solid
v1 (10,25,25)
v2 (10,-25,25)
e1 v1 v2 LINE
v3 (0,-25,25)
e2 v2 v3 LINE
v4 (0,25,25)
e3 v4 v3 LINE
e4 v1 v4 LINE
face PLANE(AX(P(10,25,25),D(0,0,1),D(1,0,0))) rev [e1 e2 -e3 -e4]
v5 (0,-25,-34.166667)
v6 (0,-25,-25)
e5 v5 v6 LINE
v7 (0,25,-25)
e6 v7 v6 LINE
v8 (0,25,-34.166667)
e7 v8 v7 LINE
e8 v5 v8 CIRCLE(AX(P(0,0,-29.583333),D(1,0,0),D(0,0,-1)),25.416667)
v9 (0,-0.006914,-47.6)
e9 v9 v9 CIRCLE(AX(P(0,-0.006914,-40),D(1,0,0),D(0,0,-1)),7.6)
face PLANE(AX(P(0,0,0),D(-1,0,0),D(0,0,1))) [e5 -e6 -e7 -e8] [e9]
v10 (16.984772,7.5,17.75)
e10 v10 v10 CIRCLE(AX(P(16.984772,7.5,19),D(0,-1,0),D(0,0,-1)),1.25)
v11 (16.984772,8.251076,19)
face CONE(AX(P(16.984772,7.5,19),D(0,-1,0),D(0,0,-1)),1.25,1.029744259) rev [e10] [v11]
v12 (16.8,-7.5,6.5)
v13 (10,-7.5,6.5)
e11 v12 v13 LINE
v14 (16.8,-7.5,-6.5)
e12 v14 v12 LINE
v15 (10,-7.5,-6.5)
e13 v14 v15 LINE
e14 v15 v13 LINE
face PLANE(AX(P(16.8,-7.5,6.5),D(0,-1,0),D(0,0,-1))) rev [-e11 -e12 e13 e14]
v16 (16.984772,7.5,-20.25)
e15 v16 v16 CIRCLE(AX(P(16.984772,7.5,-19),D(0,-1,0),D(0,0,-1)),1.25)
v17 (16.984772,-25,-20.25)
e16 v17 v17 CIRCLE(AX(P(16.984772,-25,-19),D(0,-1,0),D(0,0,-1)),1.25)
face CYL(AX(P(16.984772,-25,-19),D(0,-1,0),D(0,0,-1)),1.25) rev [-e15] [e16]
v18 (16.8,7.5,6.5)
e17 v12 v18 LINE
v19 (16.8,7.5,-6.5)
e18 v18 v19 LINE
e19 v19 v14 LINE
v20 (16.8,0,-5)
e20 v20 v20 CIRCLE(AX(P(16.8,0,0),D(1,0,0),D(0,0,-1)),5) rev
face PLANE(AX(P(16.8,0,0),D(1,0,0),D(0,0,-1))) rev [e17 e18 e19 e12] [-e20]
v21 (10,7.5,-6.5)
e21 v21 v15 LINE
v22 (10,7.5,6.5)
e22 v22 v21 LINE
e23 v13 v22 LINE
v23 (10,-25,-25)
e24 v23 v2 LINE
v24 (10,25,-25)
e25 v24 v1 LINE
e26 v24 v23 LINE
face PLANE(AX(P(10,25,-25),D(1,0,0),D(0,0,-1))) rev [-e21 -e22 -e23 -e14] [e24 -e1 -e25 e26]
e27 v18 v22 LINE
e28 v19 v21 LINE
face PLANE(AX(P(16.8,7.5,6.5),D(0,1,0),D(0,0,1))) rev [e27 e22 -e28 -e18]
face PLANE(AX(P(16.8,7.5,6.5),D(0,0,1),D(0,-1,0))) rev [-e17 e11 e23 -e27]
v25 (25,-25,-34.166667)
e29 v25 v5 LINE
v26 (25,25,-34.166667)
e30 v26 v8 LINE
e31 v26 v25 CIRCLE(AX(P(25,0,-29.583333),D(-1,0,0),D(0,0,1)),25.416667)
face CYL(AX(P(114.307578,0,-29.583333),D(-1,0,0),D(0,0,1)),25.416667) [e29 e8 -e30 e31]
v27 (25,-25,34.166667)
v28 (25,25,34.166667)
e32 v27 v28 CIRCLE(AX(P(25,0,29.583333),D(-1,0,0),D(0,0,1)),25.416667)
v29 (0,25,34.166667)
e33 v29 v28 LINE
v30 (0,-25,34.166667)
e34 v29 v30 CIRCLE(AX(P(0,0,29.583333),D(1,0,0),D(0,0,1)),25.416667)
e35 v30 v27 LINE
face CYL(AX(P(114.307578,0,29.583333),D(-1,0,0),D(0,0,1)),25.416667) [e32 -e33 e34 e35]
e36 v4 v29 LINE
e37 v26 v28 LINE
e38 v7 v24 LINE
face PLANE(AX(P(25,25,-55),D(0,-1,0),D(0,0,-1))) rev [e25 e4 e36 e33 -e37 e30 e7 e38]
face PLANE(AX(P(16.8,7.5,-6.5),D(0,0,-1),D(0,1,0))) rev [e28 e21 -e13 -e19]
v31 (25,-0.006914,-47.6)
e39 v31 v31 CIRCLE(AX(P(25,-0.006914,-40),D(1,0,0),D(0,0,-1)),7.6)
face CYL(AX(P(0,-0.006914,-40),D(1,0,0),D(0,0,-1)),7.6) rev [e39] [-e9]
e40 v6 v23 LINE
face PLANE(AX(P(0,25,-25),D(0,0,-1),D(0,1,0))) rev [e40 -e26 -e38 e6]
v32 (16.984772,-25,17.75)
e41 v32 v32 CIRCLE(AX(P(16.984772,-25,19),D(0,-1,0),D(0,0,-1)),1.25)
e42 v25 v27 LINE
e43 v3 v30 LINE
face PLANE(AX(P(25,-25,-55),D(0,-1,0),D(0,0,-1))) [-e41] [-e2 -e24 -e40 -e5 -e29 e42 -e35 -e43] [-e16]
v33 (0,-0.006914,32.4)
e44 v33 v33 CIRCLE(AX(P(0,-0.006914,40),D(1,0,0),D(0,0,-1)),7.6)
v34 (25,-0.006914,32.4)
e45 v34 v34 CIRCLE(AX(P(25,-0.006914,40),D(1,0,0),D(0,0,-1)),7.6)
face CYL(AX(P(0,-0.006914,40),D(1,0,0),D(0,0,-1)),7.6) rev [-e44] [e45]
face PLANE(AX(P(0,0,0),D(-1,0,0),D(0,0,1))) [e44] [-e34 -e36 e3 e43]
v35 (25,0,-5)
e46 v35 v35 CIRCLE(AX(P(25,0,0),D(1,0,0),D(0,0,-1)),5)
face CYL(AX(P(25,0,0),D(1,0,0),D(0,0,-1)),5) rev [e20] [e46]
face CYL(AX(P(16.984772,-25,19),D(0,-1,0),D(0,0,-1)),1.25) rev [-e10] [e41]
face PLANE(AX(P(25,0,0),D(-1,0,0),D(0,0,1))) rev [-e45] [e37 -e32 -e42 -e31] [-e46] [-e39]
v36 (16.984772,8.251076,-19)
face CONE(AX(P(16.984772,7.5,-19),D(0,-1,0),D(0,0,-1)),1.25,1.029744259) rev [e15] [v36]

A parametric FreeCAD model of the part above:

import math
import FreeCAD as App
import Part
import Sketcher

doc = App.newDocument("Part")
params = doc.addObject("Spreadsheet::Sheet", "Params")
for row, (alias, value) in enumerate([
    ("sketch1_width", "50 mm"),
    ("sketch1_height", "110 mm"),
    ("pad1_length", "25 mm"),
    ("sketch2_diameter", "15.2 mm"),
    ("sketch3_diameter", "10 mm"),
    ("hole_diameter", "10 mm"),
    ("hole_depth", "25 mm"),
    ("sketch4_width", "10 mm"),
    ("sketch4_height", "50 mm"),
    ("sketch5_width", "15 mm"),
    ("sketch5_height", "13 mm"),
    ("pocket3_length", "6.8 mm"),
    ("pocket4_length", "25 mm"),
    ("sketch7_diameter", "2.5 mm"),
    ("hole2_diameter", "2.5 mm"),
    ("hole2_depth", "32.5 mm"),
], start=1):
    params.set(f"A{row}", alias)
    params.set(f"B{row}", "=" + value)
    params.setAlias(f"B{row}", alias)

body = doc.addObject("PartDesign::Body", "Body")

# Sketch on YZ plane
sketch1 = doc.addObject("Sketcher::SketchObject", "Sketch")
body.addObject(sketch1)
sketch1.AttachmentSupport = (doc.YZ_Plane, [""])
sketch1.MapMode = "FlatFace"
sketch1.addGeometry(Part.LineSegment(App.Vector(25, 55, 0), App.Vector(-25, 55, 0)), False)
sketch1.addGeometry(Part.LineSegment(App.Vector(-25, 55, 0), App.Vector(-25, -55, 0)), False)
sketch1.addGeometry(Part.LineSegment(App.Vector(-25, -55, 0), App.Vector(25, -55, 0)), False)
sketch1.addGeometry(Part.LineSegment(App.Vector(25, -55, 0), App.Vector(25, 55, 0)), False)
sketch1.addConstraint(Sketcher.Constraint("Coincident", 0, 2, 1, 1))
sketch1.addConstraint(Sketcher.Constraint("Coincident", 1, 2, 2, 1))
sketch1.addConstraint(Sketcher.Constraint("Coincident", 2, 2, 3, 1))
sketch1.addConstraint(Sketcher.Constraint("Coincident", 3, 2, 0, 1))
sketch1.addConstraint(Sketcher.Constraint("Horizontal", 0))
sketch1.addConstraint(Sketcher.Constraint("Vertical", 1))
sketch1.addConstraint(Sketcher.Constraint("Horizontal", 2))
sketch1.addConstraint(Sketcher.Constraint("Vertical", 3))
sketch1.addConstraint(Sketcher.Constraint("Symmetric", 0, 2, 2, 2, -1, 1))
sketch1.addConstraint(Sketcher.Constraint("DistanceX", 0, 2, 0, 1, 50.0))
sketch1.addConstraint(Sketcher.Constraint("DistanceY", 1, 2, 1, 1, 110.0))
sketch1.setExpression("Constraints[9]", "Params.sketch1_width")
sketch1.setExpression("Constraints[10]", "Params.sketch1_height")
pad1 = doc.addObject("PartDesign::Pad", "Pad")
body.addObject(pad1)
pad1.Profile = sketch1
pad1.setExpression("Length", "Params.pad1_length")

# Sketch on YZ plane
sketch2 = doc.addObject("Sketcher::SketchObject", "Sketch001")
body.addObject(sketch2)
sketch2.AttachmentSupport = (doc.YZ_Plane, [""])
sketch2.MapMode = "FlatFace"
sketch2.AttachmentOffset = App.Placement(App.Vector(0, 0, 25), App.Rotation())
sketch2.addGeometry(Part.Circle(App.Vector(-0.006914, 40, 0), App.Vector(0, 0, 1), 7.6), False)
sketch2.addGeometry(Part.Circle(App.Vector(-0.006914, -40, 0), App.Vector(0, 0, 1), 7.6), False)
sketch2.addConstraint(Sketcher.Constraint("Equal", 0, 1))
sketch2.addConstraint(Sketcher.Constraint("Symmetric", 0, 3, 1, 3, -1))
sketch2.addConstraint(Sketcher.Constraint("Diameter", 0, 15.2))
sketch2.addConstraint(Sketcher.Constraint("DistanceY", -1, 1, 0, 3, 40.0))
sketch2.addConstraint(Sketcher.Constraint("DistanceX", 0, 3, -1, 1, 0.006914))
sketch2.setExpression("Constraints[2]", "Params.sketch2_diameter")
pocket1 = doc.addObject("PartDesign::Pocket", "Pocket")
body.addObject(pocket1)
pocket1.Profile = sketch2
pocket1.Type = "ThroughAll"

# Sketch on YZ plane
sketch3 = doc.addObject("Sketcher::SketchObject", "Sketch002")
body.addObject(sketch3)
sketch3.AttachmentSupport = (doc.YZ_Plane, [""])
sketch3.MapMode = "FlatFace"
sketch3.AttachmentOffset = App.Placement(App.Vector(0, 0, 25), App.Rotation())
sketch3.addGeometry(Part.Circle(App.Vector(0, 0, 0), App.Vector(0, 0, 1), 5), False)
sketch3.addConstraint(Sketcher.Constraint("Coincident", 0, 3, -1, 1))
sketch3.addConstraint(Sketcher.Constraint("Diameter", 0, 10.0))
sketch3.setExpression("Constraints[1]", "Params.sketch3_diameter")
doc.recompute()
hole = doc.addObject("PartDesign::Hole", "Hole")
body.addObject(hole)
hole.Profile = sketch3
hole.ThreadType = "None"
hole.setExpression("Diameter", "Params.hole_diameter")
hole.DepthType = "Dimension"
hole.setExpression("Depth", "Params.hole_depth")
hole.DrillPoint = "Angled"
hole.DrillPointAngle = 118

# Sketch on XZ plane
sketch4 = doc.addObject("Sketcher::SketchObject", "Sketch003")
body.addObject(sketch4)
sketch4.AttachmentSupport = (doc.XZ_Plane, [""])
sketch4.MapMode = "FlatFace"
sketch4.AttachmentOffset = App.Placement(App.Vector(0, 0, 25), App.Rotation())
sketch4.addGeometry(Part.LineSegment(App.Vector(0, 25, 0), App.Vector(0, -25, 0)), False)
sketch4.addGeometry(Part.LineSegment(App.Vector(0, -25, 0), App.Vector(10, -25, 0)), False)
sketch4.addGeometry(Part.LineSegment(App.Vector(10, -25, 0), App.Vector(10, 25, 0)), False)
sketch4.addGeometry(Part.LineSegment(App.Vector(10, 25, 0), App.Vector(0, 25, 0)), False)
sketch4.addConstraint(Sketcher.Constraint("Coincident", 0, 2, 1, 1))
sketch4.addConstraint(Sketcher.Constraint("Coincident", 1, 2, 2, 1))
sketch4.addConstraint(Sketcher.Constraint("Coincident", 2, 2, 3, 1))
sketch4.addConstraint(Sketcher.Constraint("Coincident", 3, 2, 0, 1))
sketch4.addConstraint(Sketcher.Constraint("Vertical", 0))
sketch4.addConstraint(Sketcher.Constraint("Horizontal", 1))
sketch4.addConstraint(Sketcher.Constraint("Vertical", 2))
sketch4.addConstraint(Sketcher.Constraint("Horizontal", 3))
sketch4.addConstraint(Sketcher.Constraint("Symmetric", 0, 2, 3, 2, -1, 1))
sketch4.addConstraint(Sketcher.Constraint("DistanceX", 1, 1, 1, 2, 10.0))
sketch4.addConstraint(Sketcher.Constraint("DistanceY", 0, 2, 0, 1, 50.0))
sketch4.setExpression("Constraints[9]", "Params.sketch4_width")
sketch4.setExpression("Constraints[10]", "Params.sketch4_height")
pocket2 = doc.addObject("PartDesign::Pocket", "Pocket001")
body.addObject(pocket2)
pocket2.Profile = sketch4
pocket2.Type = "ThroughAll"

# Sketch on YZ plane
sketch5 = doc.addObject("Sketcher::SketchObject", "Sketch004")
body.addObject(sketch5)
sketch5.AttachmentSupport = (doc.YZ_Plane, [""])
sketch5.MapMode = "FlatFace"
sketch5.AttachmentOffset = App.Placement(App.Vector(0, 0, 10), App.Rotation())
sketch5.addGeometry(Part.LineSegment(App.Vector(7.5, -6.5, 0), App.Vector(-7.5, -6.5, 0)), False)
sketch5.addGeometry(Part.LineSegment(App.Vector(-7.5, -6.5, 0), App.Vector(-7.5, 6.5, 0)), False)
sketch5.addGeometry(Part.LineSegment(App.Vector(-7.5, 6.5, 0), App.Vector(7.5, 6.5, 0)), False)
sketch5.addGeometry(Part.LineSegment(App.Vector(7.5, 6.5, 0), App.Vector(7.5, -6.5, 0)), False)
sketch5.addConstraint(Sketcher.Constraint("Coincident", 0, 2, 1, 1))
sketch5.addConstraint(Sketcher.Constraint("Coincident", 1, 2, 2, 1))
sketch5.addConstraint(Sketcher.Constraint("Coincident", 2, 2, 3, 1))
sketch5.addConstraint(Sketcher.Constraint("Coincident", 3, 2, 0, 1))
sketch5.addConstraint(Sketcher.Constraint("Horizontal", 0))
sketch5.addConstraint(Sketcher.Constraint("Vertical", 1))
sketch5.addConstraint(Sketcher.Constraint("Horizontal", 2))
sketch5.addConstraint(Sketcher.Constraint("Vertical", 3))
sketch5.addConstraint(Sketcher.Constraint("Symmetric", 0, 2, 2, 2, -1, 1))
sketch5.addConstraint(Sketcher.Constraint("DistanceX", 0, 2, 0, 1, 15.0))
sketch5.addConstraint(Sketcher.Constraint("DistanceY", 1, 1, 1, 2, 13.0))
sketch5.setExpression("Constraints[9]", "Params.sketch5_width")
sketch5.setExpression("Constraints[10]", "Params.sketch5_height")
pocket3 = doc.addObject("PartDesign::Pocket", "Pocket002")
body.addObject(pocket3)
pocket3.Profile = sketch5
pocket3.setExpression("Length", "Params.pocket3_length")
pocket3.Reversed = True

# Sketch on YZ plane
sketch6 = doc.addObject("Sketcher::SketchObject", "Sketch005")
body.addObject(sketch6)
sketch6.AttachmentSupport = (doc.YZ_Plane, [""])
sketch6.MapMode = "FlatFace"
sketch6.addGeometry(Part.LineSegment(App.Vector(-36.367385, -25.995844, 0), App.Vector(-25, -25, 0)), False)
sketch6.addGeometry(Part.ArcOfCircle(Part.Circle(App.Vector(0, -29.583333, 0), App.Vector(0, 0, 1), 25.416667), math.radians(169.611142), math.radians(370.388858)), False)
sketch6.addGeometry(Part.LineSegment(App.Vector(25, -25, 0), App.Vector(33.716701, -23.260412, 0)), False)
sketch6.addGeometry(Part.LineSegment(App.Vector(33.716701, -23.260412, 0), App.Vector(34.562908, -59.294707, 0)), False)
sketch6.addGeometry(Part.LineSegment(App.Vector(34.562908, -59.294707, 0), App.Vector(-28.692554, -60.780158, 0)), False)
sketch6.addGeometry(Part.LineSegment(App.Vector(-28.692554, -60.780158, 0), App.Vector(-36.367385, -25.995844, 0)), False)
sketch6.addGeometry(Part.LineSegment(App.Vector(-25, 25, 0), App.Vector(-36.367385, 27.231233, 0)), False)
sketch6.addGeometry(Part.LineSegment(App.Vector(-36.367385, 27.231233, 0), App.Vector(-36.367385, 50.619616, 0)), False)
sketch6.addGeometry(Part.LineSegment(App.Vector(-36.367385, 50.619616, 0), App.Vector(-26.522622, 65.908126, 0)), False)
sketch6.addGeometry(Part.LineSegment(App.Vector(-26.522622, 65.908126, 0), App.Vector(30.480233, 65.908126, 0)), False)
sketch6.addGeometry(Part.LineSegment(App.Vector(30.480233, 65.908126, 0), App.Vector(40.503826, 20.44759, 0)), False)
sketch6.addGeometry(Part.LineSegment(App.Vector(40.503826, 20.44759, 0), App.Vector(25, 25, 0)), False)
sketch6.addGeometry(Part.ArcOfCircle(Part.Circle(App.Vector(0, 29.583333, 0), App.Vector(0, 0, 1), 25.416667), math.radians(-10.388858), math.radians(190.388858)), False)
sketch6.addConstraint(Sketcher.Constraint("Coincident", 0, 2, 1, 1))
sketch6.addConstraint(Sketcher.Constraint("Coincident", 1, 2, 2, 1))
sketch6.addConstraint(Sketcher.Constraint("Coincident", 2, 2, 3, 1))
sketch6.addConstraint(Sketcher.Constraint("Coincident", 3, 2, 4, 1))
sketch6.addConstraint(Sketcher.Constraint("Coincident", 4, 2, 5, 1))
sketch6.addConstraint(Sketcher.Constraint("Coincident", 5, 2, 0, 1))
sketch6.addConstraint(Sketcher.Constraint("Coincident", 6, 2, 7, 1))
sketch6.addConstraint(Sketcher.Constraint("Coincident", 7, 2, 8, 1))
sketch6.addConstraint(Sketcher.Constraint("Coincident", 8, 2, 9, 1))
sketch6.addConstraint(Sketcher.Constraint("Coincident", 9, 2, 10, 1))
sketch6.addConstraint(Sketcher.Constraint("Coincident", 10, 2, 11, 1))
sketch6.addConstraint(Sketcher.Constraint("Coincident", 11, 2, 12, 1))
sketch6.addConstraint(Sketcher.Constraint("Coincident", 12, 2, 6, 1))
sketch6.addConstraint(Sketcher.Constraint("Vertical", 7))
sketch6.addConstraint(Sketcher.Constraint("Horizontal", 9))
sketch6.addConstraint(Sketcher.Constraint("Equal", 1, 12))
sketch6.addConstraint(Sketcher.Constraint("Symmetric", 1, 3, 12, 3, -1, 1))
sketch6.addConstraint(Sketcher.Constraint("Symmetric", 0, 2, 1, 2, -2))
sketch6.addConstraint(Sketcher.Constraint("Perpendicular", 3, 4))
sketch6.addConstraint(Sketcher.Constraint("Horizontal", 11, 2, 12, 2))
sketch6.addConstraint(Sketcher.Constraint("Vertical", 5, 2, 6, 2))
sketch6.addConstraint(Sketcher.Constraint("Vertical", 1, 2, 11, 2))
sketch6.addConstraint(Sketcher.Constraint("DistanceX", 0, 2, -1, 1, 25.0))
sketch6.addConstraint(Sketcher.Constraint("DistanceY", 0, 2, -1, 1, 25.0))
sketch6.addConstraint(Sketcher.Constraint("Distance", 8, 18.184001))
sketch6.addConstraint(Sketcher.Constraint("Radius", 1, 25.416667))
sketch6.addConstraint(Sketcher.Constraint("DistanceY", 2, 2, 10, 2, 43.708001))
sketch6.addConstraint(Sketcher.Constraint("Distance", 4, 63.272901))
sketch6.addConstraint(Sketcher.Constraint("DistanceX", -1, 1, 2, 2, 33.716701))
sketch6.addConstraint(Sketcher.Constraint("DistanceY", 6, 2, 12, 3, 2.3521))
sketch6.addConstraint(Sketcher.Constraint("Distance", 2, 8.888591))
sketch6.addConstraint(Sketcher.Constraint("Distance", 3, 36.04423))
sketch6.addConstraint(Sketcher.Constraint("DistanceX", 9, 1, 9, 2, 57.002855))
sketch6.addConstraint(Sketcher.Constraint("DistanceY", 7, 1, 7, 2, 23.388383))
sketch6.addConstraint(Sketcher.Constraint("DistanceY", 4, 2, -1, 1, 60.780158))
sketch6.addConstraint(Sketcher.Constraint("DistanceX", 8, 2, -1, 1, 26.522622))
sketch6.addConstraint(Sketcher.Constraint("DistanceX", 5, 2, 4, 2, 7.674831))
sketch6.addConstraint(Sketcher.Constraint("DistanceY", 1, 3, 5, 2, 3.58749))
sketch6.addConstraint(Sketcher.Constraint("Distance", 10, 46.552473))
pocket4 = doc.addObject("PartDesign::Pocket", "Pocket003")
body.addObject(pocket4)
pocket4.Profile = sketch6
pocket4.setExpression("Length", "Params.pocket4_length")
pocket4.Reversed = True

# Sketch on XZ plane
sketch7 = doc.addObject("Sketcher::SketchObject", "Sketch006")
body.addObject(sketch7)
sketch7.AttachmentSupport = (doc.XZ_Plane, [""])
sketch7.MapMode = "FlatFace"
sketch7.AttachmentOffset = App.Placement(App.Vector(0, 0, 25), App.Rotation())
sketch7.addGeometry(Part.Circle(App.Vector(16.984772, -19, 0), App.Vector(0, 0, 1), 1.25), False)
sketch7.addGeometry(Part.Circle(App.Vector(16.984772, 19, 0), App.Vector(0, 0, 1), 1.25), False)
sketch7.addConstraint(Sketcher.Constraint("Equal", 0, 1))
sketch7.addConstraint(Sketcher.Constraint("Symmetric", 0, 3, 1, 3, -1))
sketch7.addConstraint(Sketcher.Constraint("Diameter", 0, 2.5))
sketch7.addConstraint(Sketcher.Constraint("DistanceY", 0, 3, -1, 1, 19.0))
sketch7.addConstraint(Sketcher.Constraint("DistanceX", -1, 1, 0, 3, 16.984772))
sketch7.setExpression("Constraints[2]", "Params.sketch7_diameter")
doc.recompute()
hole2 = doc.addObject("PartDesign::Hole", "Hole001")
body.addObject(hole2)
hole2.Profile = sketch7
hole2.ThreadType = "None"
hole2.setExpression("Diameter", "Params.hole2_diameter")
hole2.DepthType = "Dimension"
hole2.setExpression("Depth", "Params.hole2_depth")
hole2.DrillPoint = "Angled"
hole2.DrillPointAngle = 118

doc.recompute()
